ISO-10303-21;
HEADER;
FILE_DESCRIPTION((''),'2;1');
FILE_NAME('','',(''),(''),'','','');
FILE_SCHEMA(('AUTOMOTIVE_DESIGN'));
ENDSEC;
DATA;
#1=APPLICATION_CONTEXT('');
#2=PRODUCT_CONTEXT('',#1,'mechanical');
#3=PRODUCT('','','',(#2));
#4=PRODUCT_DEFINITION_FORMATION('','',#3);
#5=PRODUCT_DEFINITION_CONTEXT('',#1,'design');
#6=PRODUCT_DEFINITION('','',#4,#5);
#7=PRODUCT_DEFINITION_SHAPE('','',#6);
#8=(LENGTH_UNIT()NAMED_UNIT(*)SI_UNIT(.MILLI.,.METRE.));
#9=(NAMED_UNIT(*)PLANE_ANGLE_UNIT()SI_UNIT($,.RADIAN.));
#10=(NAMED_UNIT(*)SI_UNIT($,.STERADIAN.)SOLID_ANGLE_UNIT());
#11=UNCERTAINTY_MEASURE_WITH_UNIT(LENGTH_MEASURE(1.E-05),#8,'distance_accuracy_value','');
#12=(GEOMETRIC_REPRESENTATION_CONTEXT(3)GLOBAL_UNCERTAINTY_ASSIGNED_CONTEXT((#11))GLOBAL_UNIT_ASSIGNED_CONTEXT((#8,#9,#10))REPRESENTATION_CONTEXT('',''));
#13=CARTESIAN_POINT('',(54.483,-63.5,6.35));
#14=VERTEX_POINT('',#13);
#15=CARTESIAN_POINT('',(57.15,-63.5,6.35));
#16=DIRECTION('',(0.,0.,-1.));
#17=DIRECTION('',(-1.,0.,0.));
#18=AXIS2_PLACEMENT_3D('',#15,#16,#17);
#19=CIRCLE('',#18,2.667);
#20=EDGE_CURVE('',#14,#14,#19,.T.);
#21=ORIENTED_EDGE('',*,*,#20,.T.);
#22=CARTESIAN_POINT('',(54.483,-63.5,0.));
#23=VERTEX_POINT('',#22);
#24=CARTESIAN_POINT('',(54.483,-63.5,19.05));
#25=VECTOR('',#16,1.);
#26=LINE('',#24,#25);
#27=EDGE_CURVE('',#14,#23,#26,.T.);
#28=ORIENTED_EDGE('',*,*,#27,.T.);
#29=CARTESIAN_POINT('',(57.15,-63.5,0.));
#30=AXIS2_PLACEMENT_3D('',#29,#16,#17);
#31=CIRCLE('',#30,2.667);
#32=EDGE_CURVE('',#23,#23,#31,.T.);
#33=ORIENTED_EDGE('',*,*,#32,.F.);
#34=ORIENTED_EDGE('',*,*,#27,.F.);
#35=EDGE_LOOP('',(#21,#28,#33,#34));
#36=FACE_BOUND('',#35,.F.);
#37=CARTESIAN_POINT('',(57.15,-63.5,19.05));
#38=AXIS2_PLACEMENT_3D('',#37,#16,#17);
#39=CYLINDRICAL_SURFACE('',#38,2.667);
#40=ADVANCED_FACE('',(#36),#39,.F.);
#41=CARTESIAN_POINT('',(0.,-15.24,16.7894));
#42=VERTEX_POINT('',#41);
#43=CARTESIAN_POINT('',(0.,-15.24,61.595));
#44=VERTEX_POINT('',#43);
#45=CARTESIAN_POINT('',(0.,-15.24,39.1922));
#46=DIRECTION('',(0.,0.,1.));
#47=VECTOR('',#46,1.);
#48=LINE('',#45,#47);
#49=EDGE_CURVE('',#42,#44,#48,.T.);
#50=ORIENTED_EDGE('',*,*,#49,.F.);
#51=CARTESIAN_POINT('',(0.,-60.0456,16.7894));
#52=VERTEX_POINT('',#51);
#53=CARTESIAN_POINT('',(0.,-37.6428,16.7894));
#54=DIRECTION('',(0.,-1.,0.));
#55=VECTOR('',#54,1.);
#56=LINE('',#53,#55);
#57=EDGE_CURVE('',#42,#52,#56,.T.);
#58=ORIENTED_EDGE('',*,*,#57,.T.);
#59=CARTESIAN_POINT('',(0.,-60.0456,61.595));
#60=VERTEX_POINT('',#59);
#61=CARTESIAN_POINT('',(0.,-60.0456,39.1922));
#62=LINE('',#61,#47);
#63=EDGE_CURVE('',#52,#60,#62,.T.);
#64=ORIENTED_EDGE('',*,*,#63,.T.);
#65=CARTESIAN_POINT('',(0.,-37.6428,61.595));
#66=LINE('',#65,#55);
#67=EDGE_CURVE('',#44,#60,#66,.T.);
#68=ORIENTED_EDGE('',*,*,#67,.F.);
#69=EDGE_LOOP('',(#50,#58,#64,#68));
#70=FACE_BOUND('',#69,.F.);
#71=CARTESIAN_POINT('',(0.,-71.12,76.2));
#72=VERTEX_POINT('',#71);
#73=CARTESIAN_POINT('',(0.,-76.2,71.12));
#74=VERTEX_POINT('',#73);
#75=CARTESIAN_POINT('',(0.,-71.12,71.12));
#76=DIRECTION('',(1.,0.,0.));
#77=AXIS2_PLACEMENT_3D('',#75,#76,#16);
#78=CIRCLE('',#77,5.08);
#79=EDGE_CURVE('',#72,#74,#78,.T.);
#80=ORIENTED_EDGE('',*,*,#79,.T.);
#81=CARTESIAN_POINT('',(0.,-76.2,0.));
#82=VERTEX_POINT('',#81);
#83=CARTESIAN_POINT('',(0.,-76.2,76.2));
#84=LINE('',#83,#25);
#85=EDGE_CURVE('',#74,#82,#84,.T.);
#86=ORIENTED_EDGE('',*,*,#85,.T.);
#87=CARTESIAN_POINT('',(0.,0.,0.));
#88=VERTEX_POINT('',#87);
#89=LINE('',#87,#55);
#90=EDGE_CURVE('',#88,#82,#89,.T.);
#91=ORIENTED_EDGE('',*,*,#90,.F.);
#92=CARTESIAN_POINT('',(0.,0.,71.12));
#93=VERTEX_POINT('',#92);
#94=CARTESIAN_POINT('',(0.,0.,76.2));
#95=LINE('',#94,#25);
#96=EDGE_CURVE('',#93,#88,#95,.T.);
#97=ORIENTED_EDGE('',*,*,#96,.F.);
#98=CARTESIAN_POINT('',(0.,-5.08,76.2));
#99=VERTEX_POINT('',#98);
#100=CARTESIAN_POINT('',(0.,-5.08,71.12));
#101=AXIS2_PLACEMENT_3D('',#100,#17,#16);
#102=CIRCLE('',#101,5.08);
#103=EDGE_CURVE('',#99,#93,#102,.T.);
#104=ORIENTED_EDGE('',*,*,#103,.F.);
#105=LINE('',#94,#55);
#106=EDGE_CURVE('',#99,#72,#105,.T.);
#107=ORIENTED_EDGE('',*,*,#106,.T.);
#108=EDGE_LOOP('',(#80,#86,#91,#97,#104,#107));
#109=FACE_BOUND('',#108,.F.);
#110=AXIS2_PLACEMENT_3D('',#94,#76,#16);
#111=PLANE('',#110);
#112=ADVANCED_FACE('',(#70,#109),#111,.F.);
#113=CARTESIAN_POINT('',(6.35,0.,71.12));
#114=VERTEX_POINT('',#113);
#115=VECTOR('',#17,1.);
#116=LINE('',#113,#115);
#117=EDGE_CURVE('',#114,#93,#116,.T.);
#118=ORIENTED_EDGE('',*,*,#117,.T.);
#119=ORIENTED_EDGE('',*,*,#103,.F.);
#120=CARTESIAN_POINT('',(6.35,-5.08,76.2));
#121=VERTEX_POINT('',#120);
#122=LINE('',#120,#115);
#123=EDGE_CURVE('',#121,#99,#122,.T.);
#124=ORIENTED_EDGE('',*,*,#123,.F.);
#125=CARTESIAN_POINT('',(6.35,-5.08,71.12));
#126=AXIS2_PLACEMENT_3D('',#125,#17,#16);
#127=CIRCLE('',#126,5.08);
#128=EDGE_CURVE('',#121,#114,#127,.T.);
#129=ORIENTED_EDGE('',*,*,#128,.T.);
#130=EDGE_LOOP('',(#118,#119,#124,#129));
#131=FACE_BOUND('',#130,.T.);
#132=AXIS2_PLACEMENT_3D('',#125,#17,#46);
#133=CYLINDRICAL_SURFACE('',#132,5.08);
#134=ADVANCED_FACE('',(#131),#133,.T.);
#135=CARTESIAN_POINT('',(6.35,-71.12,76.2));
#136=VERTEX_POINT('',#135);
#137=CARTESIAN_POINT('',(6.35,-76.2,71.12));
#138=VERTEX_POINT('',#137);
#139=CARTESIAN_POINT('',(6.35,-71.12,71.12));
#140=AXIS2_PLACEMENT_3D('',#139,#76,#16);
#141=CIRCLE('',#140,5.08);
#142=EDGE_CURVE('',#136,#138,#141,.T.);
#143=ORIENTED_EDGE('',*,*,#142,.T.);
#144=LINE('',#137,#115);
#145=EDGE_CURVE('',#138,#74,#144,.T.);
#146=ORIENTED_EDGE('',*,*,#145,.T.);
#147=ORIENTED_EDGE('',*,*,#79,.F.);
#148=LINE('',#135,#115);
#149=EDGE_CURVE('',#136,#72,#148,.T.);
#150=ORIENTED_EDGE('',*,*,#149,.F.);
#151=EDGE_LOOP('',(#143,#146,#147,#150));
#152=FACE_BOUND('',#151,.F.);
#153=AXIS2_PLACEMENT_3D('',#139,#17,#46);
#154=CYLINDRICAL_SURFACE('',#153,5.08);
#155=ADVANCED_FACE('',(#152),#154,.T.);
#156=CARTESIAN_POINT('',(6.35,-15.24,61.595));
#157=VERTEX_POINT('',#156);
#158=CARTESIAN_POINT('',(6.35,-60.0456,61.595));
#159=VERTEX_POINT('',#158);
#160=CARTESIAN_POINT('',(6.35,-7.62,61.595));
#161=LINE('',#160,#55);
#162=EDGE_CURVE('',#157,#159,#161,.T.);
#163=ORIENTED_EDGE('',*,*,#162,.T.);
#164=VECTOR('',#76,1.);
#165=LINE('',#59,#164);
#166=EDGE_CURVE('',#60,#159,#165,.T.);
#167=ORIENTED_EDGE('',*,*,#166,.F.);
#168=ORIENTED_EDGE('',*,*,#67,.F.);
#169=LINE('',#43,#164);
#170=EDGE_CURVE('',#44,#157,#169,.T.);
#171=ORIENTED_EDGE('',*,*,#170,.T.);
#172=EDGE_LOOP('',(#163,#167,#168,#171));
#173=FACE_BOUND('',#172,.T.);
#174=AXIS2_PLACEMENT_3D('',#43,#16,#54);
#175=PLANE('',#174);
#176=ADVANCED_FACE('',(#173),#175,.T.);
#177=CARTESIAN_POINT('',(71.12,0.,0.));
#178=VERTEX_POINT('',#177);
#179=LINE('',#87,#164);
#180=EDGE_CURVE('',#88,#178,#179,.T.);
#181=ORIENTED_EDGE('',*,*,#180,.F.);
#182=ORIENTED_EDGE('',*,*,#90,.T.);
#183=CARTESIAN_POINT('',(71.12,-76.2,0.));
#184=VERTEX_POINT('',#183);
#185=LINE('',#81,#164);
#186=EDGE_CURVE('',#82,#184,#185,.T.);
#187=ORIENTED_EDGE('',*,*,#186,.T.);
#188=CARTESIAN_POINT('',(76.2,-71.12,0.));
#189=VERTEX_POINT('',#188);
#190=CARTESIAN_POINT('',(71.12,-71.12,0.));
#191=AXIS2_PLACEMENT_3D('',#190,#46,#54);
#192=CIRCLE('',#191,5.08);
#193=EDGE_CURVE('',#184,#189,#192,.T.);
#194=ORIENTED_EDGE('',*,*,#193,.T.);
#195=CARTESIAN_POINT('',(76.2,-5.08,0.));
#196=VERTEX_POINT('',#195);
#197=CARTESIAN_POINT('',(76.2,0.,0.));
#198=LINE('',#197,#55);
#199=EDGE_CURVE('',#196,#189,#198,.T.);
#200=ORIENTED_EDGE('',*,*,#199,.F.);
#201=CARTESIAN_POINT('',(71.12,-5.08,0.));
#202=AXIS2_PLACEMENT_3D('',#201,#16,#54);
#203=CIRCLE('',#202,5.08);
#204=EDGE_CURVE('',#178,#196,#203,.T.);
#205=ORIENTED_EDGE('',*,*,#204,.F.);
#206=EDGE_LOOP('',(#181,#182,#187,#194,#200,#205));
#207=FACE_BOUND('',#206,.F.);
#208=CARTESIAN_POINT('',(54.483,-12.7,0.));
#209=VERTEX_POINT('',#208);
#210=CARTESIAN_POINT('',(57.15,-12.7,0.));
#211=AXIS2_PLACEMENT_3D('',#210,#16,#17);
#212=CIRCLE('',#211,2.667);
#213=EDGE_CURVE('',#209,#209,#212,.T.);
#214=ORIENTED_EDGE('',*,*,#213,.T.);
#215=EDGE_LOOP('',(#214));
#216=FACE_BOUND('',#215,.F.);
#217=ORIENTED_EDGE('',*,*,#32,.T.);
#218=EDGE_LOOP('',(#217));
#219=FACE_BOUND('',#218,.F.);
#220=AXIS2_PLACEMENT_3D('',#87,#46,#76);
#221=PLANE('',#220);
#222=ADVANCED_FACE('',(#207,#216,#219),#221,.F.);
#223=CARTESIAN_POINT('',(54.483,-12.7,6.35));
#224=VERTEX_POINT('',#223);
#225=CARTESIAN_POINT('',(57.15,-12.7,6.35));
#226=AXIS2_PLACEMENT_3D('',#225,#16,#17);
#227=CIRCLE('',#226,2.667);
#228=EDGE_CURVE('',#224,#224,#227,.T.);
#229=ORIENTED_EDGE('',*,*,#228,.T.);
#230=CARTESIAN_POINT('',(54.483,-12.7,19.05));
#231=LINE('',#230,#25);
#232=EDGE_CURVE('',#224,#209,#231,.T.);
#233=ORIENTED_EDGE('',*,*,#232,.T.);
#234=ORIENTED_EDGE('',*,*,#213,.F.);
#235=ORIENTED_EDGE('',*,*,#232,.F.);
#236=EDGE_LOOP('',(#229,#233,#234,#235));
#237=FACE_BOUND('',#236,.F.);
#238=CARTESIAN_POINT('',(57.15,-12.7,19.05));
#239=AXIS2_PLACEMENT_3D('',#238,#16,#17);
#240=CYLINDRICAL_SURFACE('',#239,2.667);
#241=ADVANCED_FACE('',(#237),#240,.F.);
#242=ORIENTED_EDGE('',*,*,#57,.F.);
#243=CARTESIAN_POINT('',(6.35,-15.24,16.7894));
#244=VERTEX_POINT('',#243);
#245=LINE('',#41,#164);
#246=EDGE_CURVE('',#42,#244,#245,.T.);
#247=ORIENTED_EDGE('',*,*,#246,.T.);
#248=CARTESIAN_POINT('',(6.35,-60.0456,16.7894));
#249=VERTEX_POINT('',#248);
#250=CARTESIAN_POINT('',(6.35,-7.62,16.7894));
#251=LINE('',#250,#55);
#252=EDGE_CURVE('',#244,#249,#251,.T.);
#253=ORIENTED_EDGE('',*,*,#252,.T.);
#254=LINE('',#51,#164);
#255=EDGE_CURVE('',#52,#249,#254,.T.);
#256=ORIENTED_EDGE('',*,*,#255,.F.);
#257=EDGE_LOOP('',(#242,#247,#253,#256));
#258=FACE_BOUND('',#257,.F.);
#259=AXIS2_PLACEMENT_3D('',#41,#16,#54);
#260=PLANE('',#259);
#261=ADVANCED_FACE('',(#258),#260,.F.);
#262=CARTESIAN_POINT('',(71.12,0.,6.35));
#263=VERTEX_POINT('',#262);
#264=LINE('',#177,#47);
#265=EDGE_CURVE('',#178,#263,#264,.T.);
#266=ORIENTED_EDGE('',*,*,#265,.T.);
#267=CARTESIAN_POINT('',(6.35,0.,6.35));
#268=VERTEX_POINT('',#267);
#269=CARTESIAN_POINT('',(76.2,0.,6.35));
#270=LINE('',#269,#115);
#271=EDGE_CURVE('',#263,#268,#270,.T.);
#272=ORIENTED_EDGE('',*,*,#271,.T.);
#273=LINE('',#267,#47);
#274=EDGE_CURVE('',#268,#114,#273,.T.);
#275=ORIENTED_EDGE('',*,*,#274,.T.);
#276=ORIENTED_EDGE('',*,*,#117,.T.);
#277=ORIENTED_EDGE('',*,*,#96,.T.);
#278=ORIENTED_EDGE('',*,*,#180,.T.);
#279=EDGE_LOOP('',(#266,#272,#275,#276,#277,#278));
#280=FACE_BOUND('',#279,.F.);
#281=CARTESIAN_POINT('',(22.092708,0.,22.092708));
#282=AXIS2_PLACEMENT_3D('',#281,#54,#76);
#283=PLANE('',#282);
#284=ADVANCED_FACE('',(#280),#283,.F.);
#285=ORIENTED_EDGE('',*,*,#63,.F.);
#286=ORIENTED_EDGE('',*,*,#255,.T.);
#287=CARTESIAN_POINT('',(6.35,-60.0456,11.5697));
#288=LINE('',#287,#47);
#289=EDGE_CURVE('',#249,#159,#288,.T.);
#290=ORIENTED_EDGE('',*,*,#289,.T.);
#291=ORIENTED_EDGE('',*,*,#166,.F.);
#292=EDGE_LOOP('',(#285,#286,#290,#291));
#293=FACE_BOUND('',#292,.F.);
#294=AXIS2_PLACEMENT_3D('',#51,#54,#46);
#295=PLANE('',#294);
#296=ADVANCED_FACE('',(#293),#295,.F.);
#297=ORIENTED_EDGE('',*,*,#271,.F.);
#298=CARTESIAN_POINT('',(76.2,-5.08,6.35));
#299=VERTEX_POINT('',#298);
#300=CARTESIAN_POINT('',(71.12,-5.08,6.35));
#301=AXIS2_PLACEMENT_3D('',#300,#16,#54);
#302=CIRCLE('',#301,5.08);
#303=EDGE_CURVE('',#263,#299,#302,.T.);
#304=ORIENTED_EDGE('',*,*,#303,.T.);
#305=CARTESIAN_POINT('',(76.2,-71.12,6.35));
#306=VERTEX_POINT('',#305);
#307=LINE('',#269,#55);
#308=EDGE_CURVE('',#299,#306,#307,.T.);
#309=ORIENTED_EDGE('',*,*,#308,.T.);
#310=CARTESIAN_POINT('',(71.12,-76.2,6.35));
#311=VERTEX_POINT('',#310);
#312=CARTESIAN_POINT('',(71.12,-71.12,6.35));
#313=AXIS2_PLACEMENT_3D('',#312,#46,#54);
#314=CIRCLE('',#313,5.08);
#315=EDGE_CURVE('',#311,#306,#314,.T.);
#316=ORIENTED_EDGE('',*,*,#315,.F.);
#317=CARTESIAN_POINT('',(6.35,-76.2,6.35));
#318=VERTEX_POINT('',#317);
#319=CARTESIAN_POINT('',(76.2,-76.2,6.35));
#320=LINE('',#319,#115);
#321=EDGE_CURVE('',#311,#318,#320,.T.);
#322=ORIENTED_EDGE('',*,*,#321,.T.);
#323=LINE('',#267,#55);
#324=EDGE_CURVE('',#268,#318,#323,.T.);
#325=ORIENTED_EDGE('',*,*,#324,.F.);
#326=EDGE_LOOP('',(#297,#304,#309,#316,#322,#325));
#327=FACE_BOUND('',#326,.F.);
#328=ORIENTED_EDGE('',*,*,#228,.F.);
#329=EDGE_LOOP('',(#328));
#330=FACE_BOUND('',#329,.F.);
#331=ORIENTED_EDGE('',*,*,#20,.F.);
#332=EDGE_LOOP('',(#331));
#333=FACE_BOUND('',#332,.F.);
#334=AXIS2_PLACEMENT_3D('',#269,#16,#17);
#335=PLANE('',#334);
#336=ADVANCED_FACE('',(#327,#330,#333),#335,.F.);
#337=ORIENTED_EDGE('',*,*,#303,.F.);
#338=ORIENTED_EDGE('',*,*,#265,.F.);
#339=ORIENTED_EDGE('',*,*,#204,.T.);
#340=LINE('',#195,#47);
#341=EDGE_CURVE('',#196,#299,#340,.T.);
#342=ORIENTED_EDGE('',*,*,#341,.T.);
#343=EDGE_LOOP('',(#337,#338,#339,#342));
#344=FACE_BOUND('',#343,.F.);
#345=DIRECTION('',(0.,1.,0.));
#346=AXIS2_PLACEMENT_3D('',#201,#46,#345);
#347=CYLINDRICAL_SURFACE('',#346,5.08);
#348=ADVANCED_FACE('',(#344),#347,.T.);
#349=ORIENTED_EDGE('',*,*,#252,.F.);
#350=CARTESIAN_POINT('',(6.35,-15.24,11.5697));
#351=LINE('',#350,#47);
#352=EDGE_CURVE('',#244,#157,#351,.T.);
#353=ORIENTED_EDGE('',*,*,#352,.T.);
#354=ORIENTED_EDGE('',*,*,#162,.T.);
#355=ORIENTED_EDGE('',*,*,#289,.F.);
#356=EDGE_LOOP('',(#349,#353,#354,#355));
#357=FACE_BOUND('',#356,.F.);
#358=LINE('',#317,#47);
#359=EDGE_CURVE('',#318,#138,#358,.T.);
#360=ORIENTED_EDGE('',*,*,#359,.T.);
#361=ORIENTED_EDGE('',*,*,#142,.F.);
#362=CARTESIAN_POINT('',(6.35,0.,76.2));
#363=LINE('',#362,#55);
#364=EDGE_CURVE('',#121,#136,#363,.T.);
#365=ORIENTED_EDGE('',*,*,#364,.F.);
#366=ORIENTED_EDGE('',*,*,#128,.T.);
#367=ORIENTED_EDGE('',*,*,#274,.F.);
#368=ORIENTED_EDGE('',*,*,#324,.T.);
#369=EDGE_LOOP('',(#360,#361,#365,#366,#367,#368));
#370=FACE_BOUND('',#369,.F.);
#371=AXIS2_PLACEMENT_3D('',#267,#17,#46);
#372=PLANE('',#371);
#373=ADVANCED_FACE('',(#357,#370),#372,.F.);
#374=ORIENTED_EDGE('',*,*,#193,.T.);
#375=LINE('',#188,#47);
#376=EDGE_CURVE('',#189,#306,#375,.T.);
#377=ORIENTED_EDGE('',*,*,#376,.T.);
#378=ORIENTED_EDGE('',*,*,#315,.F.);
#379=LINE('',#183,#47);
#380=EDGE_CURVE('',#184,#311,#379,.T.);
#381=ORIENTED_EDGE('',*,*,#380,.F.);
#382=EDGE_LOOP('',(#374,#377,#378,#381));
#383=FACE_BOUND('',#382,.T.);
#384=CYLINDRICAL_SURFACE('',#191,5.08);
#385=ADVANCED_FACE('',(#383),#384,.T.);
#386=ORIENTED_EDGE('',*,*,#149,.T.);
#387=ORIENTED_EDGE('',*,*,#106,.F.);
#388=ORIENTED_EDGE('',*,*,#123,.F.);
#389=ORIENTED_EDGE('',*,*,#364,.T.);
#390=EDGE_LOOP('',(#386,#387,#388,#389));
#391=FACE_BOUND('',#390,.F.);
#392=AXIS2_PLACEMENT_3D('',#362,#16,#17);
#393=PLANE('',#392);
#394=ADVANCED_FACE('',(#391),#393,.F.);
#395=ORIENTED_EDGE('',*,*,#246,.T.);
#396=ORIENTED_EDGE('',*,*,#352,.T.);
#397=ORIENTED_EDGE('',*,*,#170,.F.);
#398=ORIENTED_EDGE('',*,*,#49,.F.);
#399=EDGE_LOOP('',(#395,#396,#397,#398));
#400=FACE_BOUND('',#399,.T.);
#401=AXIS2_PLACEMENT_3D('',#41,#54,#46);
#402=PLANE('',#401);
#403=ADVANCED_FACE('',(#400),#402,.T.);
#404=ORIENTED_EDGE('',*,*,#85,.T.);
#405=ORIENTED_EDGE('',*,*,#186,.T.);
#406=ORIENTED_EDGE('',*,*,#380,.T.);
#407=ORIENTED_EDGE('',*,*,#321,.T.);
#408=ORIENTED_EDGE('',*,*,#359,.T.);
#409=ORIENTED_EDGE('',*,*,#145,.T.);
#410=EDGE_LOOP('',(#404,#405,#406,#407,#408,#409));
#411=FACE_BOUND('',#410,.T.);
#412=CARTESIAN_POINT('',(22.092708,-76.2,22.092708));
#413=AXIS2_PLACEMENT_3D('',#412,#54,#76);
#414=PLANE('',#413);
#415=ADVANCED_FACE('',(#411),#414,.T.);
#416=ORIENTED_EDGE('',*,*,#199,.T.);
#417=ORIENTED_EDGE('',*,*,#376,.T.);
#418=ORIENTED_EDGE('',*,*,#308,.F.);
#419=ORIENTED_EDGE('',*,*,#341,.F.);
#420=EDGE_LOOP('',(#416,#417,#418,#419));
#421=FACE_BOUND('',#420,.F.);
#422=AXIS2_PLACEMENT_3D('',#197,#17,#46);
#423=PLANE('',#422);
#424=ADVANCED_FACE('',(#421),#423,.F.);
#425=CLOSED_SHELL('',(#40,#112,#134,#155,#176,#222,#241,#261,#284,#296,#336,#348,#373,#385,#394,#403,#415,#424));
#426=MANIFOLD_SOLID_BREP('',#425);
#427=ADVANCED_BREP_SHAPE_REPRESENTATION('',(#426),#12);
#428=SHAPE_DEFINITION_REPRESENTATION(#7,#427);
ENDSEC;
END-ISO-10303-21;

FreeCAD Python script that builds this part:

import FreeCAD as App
import Part
import Sketcher
from FreeCAD import Vector
Q = App.Units.Quantity


def edges_at(feature, points):
    """Names of the edges that pass closest to the given points."""
    edges = feature.Shape.Edges
    near = lambda p: min(range(len(edges)), key=lambda i: edges[i].distToShape(Part.Vertex(*p))[0])
    return sorted({f"Edge{near(p) + 1}" for p in points})

doc = App.newDocument("Part")
body = doc.addObject("PartDesign::Body", "Body")

sketch1 = body.newObject("Sketcher::SketchObject", "Sketch")
sketch1.AttachmentSupport = (doc.getObject("XZ_Plane"), [""])
sketch1.MapMode = "FlatFace"
sketch1.addGeometry(Part.LineSegment(Vector(0, 76, 0), Vector(0, 0, 0)), False)
sketch1.addGeometry(Part.LineSegment(Vector(0, 0, 0), Vector(76, 0, 0)), False)
sketch1.addGeometry(Part.LineSegment(Vector(76, 0, 0), Vector(76, 6, 0)), False)
sketch1.addGeometry(Part.LineSegment(Vector(76, 6, 0), Vector(6, 6, 0)), False)
sketch1.addGeometry(Part.LineSegment(Vector(6, 6, 0), Vector(6, 76, 0)), False)
sketch1.addGeometry(Part.LineSegment(Vector(6, 76, 0), Vector(0, 76, 0)), False)
sketch1.addConstraint(Sketcher.Constraint("Coincident", 0, 2, 1, 1))
sketch1.addConstraint(Sketcher.Constraint("Coincident", 1, 2, 2, 1))
sketch1.addConstraint(Sketcher.Constraint("Coincident", 2, 2, 3, 1))
sketch1.addConstraint(Sketcher.Constraint("Coincident", 3, 2, 4, 1))
sketch1.addConstraint(Sketcher.Constraint("Coincident", 4, 2, 5, 1))
sketch1.addConstraint(Sketcher.Constraint("Coincident", 5, 2, 0, 1))
sketch1.addConstraint(Sketcher.Constraint("Vertical", 0))
sketch1.addConstraint(Sketcher.Constraint("Horizontal", 1))
sketch1.addConstraint(Sketcher.Constraint("Vertical", 2))
sketch1.addConstraint(Sketcher.Constraint("Horizontal", 3))
sketch1.addConstraint(Sketcher.Constraint("Vertical", 4))
sketch1.addConstraint(Sketcher.Constraint("Horizontal", 5))
sketch1.addConstraint(Sketcher.Constraint("Coincident", 0, 2, -1, 1))
sketch1.addConstraint(Sketcher.Constraint("Equal", 1, 0))
sketch1.addConstraint(Sketcher.Constraint("Equal", 5, 2))
sketch1.addConstraint(Sketcher.Constraint("DistanceX", 1, 1, 1, 2, Q("3 in")))
sketch1.addConstraint(Sketcher.Constraint("DistanceX", 3, 2, 3, 1, Q("2.75 in")))
pad1 = body.newObject("PartDesign::Pad", "Pad")
pad1.Profile = sketch1
pad1.Length = Q("3 in")

sketch2 = body.newObject("Sketcher::SketchObject", "Sketch001")
sketch2.AttachmentSupport = (doc.getObject("YZ_Plane"), [""])
sketch2.MapMode = "FlatFace"
sketch2.addGeometry(Part.LineSegment(Vector(-15, 62, 0), Vector(-15, 17, 0)), False)
sketch2.addGeometry(Part.LineSegment(Vector(-15, 17, 0), Vector(-60, 17, 0)), False)
sketch2.addGeometry(Part.LineSegment(Vector(-60, 17, 0), Vector(-60, 62, 0)), False)
sketch2.addGeometry(Part.LineSegment(Vector(-60, 62, 0), Vector(-15, 62, 0)), False)
sketch2.addConstraint(Sketcher.Constraint("Coincident", 0, 2, 1, 1))
sketch2.addConstraint(Sketcher.Constraint("Coincident", 1, 2, 2, 1))
sketch2.addConstraint(Sketcher.Constraint("Coincident", 2, 2, 3, 1))
sketch2.addConstraint(Sketcher.Constraint("Coincident", 3, 2, 0, 1))
sketch2.addConstraint(Sketcher.Constraint("Vertical", 0))
sketch2.addConstraint(Sketcher.Constraint("Horizontal", 1))
sketch2.addConstraint(Sketcher.Constraint("Vertical", 2))
sketch2.addConstraint(Sketcher.Constraint("Horizontal", 3))
sketch2.addConstraint(Sketcher.Constraint("Equal", 3, 0))
sketch2.addConstraint(Sketcher.Constraint("DistanceX", 0, 2, -1, 1, Q("0.6 in")))
sketch2.addConstraint(Sketcher.Constraint("DistanceX", 1, 2, 1, 1, Q("1.764 in")))
sketch2.addConstraint(Sketcher.Constraint("DistanceY", -1, 1, 0, 2, Q("0.661 in")))
pocket1 = body.newObject("PartDesign::Pocket", "Pocket")
pocket1.Profile = sketch2
pocket1.Length = Q("1 in")
pocket1.Reversed = True

sketch3 = body.newObject("Sketcher::SketchObject", "Sketch002")
sketch3.AttachmentSupport = (doc.getObject("XY_Plane"), [""])
sketch3.MapMode = "FlatFace"
sketch3.AttachmentOffset = App.Placement(Vector(0, 0, 0.25 * 25.4), App.Rotation())
sketch3.addGeometry(Part.Circle(Vector(57.1, -12.7, 0), Vector(0, 0, 1), 2.7), False)
sketch3.addGeometry(Part.Circle(Vector(57.1, -63.5, 0), Vector(0, 0, 1), 2.7), False)
sketch3.addConstraint(Sketcher.Constraint("Equal", 0, 1))
sketch3.addConstraint(Sketcher.Constraint("Vertical", 0, 3, 1, 3))
sketch3.addConstraint(Sketcher.Constraint("Diameter", 0, Q("0.21 in")))
sketch3.addConstraint(Sketcher.Constraint("DistanceY", 1, 3, 0, 3, Q("2 in")))
sketch3.addConstraint(Sketcher.Constraint("DistanceY", 0, 3, -1, 1, Q("0.5 in")))
sketch3.addConstraint(Sketcher.Constraint("DistanceX", -1, 1, 0, 3, Q("2.25 in")))
doc.recompute()
hole = body.newObject("PartDesign::Hole", "Hole")
hole.Profile = sketch3
hole.ThreadType = "None"
hole.Diameter = Q("0.21 in")
hole.DepthType = "Dimension"
hole.Depth = Q("0.5 in")
hole.DrillPoint = "Flat"
doc.recompute()

fillet = body.newObject("PartDesign::Fillet", "Fillet")
fillet.Base = (hole, edges_at(hole, [
    (3.175, 0, 76.2),
    (3.175, -76.2, 76.2),
    (76.2, -76.2, 3.175),
    (76.2, 0, 3.175),
]))
fillet.Radius = Q("0.2 in")

doc.recompute()
